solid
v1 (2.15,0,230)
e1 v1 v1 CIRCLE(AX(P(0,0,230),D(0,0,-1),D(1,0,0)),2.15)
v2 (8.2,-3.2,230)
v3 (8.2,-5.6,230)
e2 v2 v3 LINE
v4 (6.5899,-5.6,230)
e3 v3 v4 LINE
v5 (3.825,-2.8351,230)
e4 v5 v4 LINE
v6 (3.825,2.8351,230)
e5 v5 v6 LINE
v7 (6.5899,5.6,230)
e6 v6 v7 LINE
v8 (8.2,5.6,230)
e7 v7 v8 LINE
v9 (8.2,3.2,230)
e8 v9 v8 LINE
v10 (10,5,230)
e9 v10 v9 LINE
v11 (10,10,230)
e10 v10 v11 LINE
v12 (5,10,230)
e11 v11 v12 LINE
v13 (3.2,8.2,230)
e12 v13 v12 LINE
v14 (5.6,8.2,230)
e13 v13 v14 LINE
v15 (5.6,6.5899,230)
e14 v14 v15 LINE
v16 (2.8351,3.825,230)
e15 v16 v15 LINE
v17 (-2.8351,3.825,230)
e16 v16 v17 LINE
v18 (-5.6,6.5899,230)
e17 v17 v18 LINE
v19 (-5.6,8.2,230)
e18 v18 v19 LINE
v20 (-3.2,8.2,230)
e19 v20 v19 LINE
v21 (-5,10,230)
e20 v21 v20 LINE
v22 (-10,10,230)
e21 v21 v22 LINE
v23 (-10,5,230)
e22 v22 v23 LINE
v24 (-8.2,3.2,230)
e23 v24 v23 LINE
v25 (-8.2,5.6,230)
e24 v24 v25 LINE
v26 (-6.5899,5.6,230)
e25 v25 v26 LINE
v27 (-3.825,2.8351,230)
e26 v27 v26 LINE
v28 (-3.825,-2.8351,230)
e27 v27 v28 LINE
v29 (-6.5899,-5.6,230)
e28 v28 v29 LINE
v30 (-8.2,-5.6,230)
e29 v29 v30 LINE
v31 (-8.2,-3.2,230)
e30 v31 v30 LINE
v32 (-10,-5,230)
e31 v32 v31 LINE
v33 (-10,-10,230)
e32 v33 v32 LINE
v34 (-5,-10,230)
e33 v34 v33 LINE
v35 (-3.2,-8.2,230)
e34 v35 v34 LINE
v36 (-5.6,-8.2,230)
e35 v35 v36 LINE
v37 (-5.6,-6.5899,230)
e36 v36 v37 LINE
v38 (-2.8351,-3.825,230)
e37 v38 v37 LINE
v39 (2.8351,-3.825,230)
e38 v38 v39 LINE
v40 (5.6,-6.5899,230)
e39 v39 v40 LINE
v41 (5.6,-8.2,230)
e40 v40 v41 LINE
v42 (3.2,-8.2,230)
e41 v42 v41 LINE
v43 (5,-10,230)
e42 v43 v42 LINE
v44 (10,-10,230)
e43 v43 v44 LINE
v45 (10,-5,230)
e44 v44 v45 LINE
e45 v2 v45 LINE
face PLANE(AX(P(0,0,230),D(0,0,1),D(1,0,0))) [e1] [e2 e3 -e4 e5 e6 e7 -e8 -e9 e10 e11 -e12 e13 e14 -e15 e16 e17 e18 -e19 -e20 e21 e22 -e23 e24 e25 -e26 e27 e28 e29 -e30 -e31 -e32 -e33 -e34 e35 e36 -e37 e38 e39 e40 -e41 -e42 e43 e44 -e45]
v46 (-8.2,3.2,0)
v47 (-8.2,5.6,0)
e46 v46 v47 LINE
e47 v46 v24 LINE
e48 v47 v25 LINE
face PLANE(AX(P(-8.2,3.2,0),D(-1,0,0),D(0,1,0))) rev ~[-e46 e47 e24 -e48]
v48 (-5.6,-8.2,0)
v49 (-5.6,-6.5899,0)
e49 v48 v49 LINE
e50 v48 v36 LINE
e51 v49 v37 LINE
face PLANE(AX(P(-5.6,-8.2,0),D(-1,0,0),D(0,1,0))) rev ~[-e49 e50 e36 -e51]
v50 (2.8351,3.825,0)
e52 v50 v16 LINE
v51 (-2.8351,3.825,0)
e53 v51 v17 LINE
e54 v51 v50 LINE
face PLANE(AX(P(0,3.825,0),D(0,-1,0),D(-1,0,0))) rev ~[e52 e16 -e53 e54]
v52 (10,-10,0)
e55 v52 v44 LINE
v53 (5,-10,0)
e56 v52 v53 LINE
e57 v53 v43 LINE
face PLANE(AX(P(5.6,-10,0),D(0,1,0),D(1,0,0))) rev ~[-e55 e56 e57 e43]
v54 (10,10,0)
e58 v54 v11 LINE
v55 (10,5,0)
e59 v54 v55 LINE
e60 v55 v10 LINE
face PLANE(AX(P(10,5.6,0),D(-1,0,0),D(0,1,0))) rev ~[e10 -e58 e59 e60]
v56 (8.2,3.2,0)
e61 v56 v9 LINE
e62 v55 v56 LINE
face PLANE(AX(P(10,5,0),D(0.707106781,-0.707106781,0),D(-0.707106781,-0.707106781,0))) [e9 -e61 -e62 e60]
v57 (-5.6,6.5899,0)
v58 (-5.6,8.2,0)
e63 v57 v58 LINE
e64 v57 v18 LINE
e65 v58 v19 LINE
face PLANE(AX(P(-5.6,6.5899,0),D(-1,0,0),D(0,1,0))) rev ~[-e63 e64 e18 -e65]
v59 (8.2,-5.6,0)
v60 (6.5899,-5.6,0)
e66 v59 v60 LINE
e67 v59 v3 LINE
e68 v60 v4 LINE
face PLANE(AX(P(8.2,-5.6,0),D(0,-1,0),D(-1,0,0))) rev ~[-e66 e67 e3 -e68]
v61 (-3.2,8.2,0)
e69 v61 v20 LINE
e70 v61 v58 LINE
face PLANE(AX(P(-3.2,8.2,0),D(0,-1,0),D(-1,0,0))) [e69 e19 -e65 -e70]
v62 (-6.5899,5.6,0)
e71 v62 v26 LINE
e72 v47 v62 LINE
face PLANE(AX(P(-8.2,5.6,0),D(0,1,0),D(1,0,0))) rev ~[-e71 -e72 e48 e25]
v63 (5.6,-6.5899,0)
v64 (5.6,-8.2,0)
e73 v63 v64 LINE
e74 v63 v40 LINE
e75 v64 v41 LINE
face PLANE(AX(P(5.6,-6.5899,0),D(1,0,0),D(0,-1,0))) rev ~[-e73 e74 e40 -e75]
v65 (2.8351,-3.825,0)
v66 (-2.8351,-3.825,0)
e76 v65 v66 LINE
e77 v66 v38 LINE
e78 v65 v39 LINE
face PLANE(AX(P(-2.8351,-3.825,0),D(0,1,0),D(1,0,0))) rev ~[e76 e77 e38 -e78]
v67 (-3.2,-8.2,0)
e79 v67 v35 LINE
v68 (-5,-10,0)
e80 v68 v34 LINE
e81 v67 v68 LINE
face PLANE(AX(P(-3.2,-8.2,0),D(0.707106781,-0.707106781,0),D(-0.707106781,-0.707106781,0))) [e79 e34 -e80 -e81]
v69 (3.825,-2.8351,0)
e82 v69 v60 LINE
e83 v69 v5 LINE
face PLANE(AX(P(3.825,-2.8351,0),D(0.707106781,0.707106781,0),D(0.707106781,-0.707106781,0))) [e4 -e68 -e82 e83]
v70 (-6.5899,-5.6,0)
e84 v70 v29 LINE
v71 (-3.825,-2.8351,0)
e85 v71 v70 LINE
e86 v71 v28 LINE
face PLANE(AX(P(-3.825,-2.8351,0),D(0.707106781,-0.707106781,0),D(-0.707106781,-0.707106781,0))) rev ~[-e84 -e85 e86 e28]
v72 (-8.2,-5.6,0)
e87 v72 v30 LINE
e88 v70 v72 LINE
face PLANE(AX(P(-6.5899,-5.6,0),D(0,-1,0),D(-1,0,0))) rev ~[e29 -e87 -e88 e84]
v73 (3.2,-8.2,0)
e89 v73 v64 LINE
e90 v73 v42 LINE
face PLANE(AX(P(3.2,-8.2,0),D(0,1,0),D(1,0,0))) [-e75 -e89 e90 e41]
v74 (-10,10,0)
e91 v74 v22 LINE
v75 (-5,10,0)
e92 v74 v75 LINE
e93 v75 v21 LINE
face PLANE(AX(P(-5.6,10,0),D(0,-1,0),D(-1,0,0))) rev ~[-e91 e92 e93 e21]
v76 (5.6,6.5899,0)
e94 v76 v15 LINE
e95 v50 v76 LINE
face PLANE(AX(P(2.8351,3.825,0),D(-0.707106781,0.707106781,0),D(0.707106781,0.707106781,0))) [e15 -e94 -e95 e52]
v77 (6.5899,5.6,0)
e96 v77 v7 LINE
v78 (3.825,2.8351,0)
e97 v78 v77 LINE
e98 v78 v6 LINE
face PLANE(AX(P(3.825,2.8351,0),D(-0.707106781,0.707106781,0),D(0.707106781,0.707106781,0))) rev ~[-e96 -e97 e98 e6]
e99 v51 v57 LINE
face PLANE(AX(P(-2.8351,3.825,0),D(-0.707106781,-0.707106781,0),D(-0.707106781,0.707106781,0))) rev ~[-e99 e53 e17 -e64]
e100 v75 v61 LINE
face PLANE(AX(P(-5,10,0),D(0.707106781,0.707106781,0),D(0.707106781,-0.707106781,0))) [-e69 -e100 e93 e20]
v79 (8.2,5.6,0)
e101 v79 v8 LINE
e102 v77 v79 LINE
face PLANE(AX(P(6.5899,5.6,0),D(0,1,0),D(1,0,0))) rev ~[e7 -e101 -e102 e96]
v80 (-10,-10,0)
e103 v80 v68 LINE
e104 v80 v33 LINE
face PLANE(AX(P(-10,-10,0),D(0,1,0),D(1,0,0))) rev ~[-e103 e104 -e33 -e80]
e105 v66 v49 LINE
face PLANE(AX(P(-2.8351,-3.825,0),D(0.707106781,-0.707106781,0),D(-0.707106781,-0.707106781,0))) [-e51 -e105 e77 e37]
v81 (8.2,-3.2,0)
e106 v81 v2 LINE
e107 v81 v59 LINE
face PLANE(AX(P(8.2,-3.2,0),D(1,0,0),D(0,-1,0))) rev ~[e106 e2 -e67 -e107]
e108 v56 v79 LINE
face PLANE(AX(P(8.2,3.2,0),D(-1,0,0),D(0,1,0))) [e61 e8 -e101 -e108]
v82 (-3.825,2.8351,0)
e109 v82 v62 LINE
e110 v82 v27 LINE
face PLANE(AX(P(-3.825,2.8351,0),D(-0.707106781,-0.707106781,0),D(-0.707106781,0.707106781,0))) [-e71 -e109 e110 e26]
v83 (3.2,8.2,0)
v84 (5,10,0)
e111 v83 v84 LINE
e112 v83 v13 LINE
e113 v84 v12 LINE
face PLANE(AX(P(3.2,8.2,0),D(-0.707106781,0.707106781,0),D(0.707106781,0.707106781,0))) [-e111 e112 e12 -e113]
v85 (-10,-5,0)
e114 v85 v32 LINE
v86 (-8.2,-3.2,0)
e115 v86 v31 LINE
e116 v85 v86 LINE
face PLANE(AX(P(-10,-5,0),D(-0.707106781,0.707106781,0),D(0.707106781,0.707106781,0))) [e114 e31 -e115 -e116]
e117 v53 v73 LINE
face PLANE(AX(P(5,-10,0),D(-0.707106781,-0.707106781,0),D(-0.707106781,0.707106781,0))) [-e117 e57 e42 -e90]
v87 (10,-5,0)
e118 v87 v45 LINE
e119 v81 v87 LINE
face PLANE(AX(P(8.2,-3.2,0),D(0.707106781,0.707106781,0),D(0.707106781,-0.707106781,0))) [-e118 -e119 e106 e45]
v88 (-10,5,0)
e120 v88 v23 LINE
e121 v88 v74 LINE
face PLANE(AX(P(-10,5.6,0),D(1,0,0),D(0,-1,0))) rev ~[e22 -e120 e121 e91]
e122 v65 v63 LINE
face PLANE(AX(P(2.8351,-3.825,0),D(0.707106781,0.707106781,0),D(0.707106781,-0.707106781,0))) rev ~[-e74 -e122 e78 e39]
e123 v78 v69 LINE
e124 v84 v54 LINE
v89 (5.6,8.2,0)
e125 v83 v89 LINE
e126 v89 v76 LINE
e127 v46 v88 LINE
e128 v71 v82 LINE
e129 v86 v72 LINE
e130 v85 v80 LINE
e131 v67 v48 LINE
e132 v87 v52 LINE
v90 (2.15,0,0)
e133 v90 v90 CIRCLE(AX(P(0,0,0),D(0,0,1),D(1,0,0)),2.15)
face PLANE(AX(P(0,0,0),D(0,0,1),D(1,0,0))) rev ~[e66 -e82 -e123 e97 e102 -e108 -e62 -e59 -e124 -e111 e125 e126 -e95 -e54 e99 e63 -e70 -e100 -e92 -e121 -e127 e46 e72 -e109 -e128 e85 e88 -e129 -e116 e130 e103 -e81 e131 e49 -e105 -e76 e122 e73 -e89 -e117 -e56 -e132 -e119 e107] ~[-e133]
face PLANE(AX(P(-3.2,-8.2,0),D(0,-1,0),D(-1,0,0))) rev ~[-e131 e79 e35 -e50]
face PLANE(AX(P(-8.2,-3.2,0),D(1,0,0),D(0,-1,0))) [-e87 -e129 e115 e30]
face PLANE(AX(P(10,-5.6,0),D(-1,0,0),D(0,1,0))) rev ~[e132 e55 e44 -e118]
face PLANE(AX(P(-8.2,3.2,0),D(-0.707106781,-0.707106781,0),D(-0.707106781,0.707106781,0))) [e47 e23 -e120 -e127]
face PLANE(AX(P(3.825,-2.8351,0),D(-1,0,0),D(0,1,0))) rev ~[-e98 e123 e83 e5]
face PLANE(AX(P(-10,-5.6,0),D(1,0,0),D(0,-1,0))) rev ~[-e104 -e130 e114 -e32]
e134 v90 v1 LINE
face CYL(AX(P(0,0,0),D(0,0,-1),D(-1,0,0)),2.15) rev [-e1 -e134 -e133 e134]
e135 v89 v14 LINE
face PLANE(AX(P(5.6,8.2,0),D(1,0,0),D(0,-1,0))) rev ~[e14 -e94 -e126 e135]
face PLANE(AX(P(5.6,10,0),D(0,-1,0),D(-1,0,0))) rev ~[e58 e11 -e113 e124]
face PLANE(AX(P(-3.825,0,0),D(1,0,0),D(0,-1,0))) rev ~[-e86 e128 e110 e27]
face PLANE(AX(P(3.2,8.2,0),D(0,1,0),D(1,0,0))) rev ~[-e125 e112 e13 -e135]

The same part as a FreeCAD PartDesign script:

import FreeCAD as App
import Part
import Sketcher
from FreeCAD import Vector
Q = App.Units.Quantity


def add_polygon(sketch, points):
    """Adds a closed chain of lines whose ends are joined by coincident constraints."""
    first, n = sketch.GeometryCount, len(points)
    for a, b in zip(points, points[1:] + points[:1]):
        sketch.addGeometry(Part.LineSegment(App.Vector(*a, 0), App.Vector(*b, 0)), False)
    for i in range(n):
        sketch.addConstraint(Sketcher.Constraint("Coincident", first + i, 2, first + (i + 1) % n, 1))

doc = App.newDocument("Part")
body = doc.addObject("PartDesign::Body", "Body")

# Sketch on XY plane
sketch1 = body.newObject("Sketcher::SketchObject", "Sketch")
sketch1.AttachmentSupport = (doc.getObject("XY_Plane"), [""])
sketch1.MapMode = "FlatFace"
add_polygon(sketch1, [(-10, -10), (-5, -10), (-3.2, -8.2), (-5.6, -8.2), (-5.6, -6.6), (-2.8, -3.8), (2.8, -3.8), (5.6, -6.6), (5.6, -8.2), (3.2, -8.2), (5, -10), (10, -10), (10, -5), (8.2, -3.2), (8.2, -5.6), (6.6, -5.6), (3.8, -2.8), (3.8, 2.8), (6.6, 5.6), (8.2, 5.6), (8.2, 3.2), (10, 5), (10, 10), (5, 10), (3.2, 8.2), (5.6, 8.2), (5.6, 6.6), (2.8, 3.8), (-2.8, 3.8), (-5.6, 6.6), (-5.6, 8.2), (-3.2, 8.2), (-5, 10), (-10, 10), (-10, 5), (-8.2, 3.2), (-8.2, 5.6), (-6.6, 5.6), (-3.8, 2.8), (-3.8, -2.8), (-6.6, -5.6), (-8.2, -5.6), (-8.2, -3.2), (-10, -5)])  # lines 0-43
sketch1.addGeometry(Part.Circle(Vector(0, 0, 0), Vector(0, 0, 1), 2.1), False)  # 44
sketch1.addConstraint([
    Sketcher.Constraint("Horizontal", 0),
    Sketcher.Constraint("Horizontal", 2),
    Sketcher.Constraint("Vertical", 3),
    Sketcher.Constraint("Horizontal", 5),
    Sketcher.Constraint("Vertical", 7),
    Sketcher.Constraint("Horizontal", 8),
    Sketcher.Constraint("Horizontal", 10),
    Sketcher.Constraint("Vertical", 11),
    Sketcher.Constraint("Vertical", 13),
    Sketcher.Constraint("Horizontal", 14),
    Sketcher.Constraint("Vertical", 16),
    Sketcher.Constraint("Horizontal", 18),
    Sketcher.Constraint("Vertical", 19),
    Sketcher.Constraint("Vertical", 21),
    Sketcher.Constraint("Horizontal", 22),
    Sketcher.Constraint("Horizontal", 24),
    Sketcher.Constraint("Vertical", 25),
    Sketcher.Constraint("Horizontal", 27),
    Sketcher.Constraint("Vertical", 29),
    Sketcher.Constraint("Horizontal", 30),
    Sketcher.Constraint("Horizontal", 32),
    Sketcher.Constraint("Vertical", 33),
    Sketcher.Constraint("Vertical", 35),
    Sketcher.Constraint("Horizontal", 36),
    Sketcher.Constraint("Vertical", 38),
    Sketcher.Constraint("Horizontal", 40),
    Sketcher.Constraint("Vertical", 41),
    Sketcher.Constraint("Vertical", 43),
    Sketcher.Constraint("Coincident", 44, 3, -1, 1),
    Sketcher.Constraint("Symmetric", 0, 2, 22, 2, -1, 1),
    Sketcher.Constraint("Symmetric", 1, 2, 23, 2, -1, 1),
    Sketcher.Constraint("Symmetric", 3, 2, 25, 2, -1, 1),
    Sketcher.Constraint("Symmetric", 4, 2, 26, 2, -1, 1),
    Sketcher.Constraint("Symmetric", 6, 2, 28, 2, -1, 1),
    Sketcher.Constraint("Symmetric", 8, 2, 30, 2, -1, 1),
    Sketcher.Constraint("Symmetric", 9, 2, 31, 2, -1, 1),
    Sketcher.Constraint("Symmetric", 11, 2, 33, 2, -1, 1),
    Sketcher.Constraint("Symmetric", 12, 2, 34, 2, -1, 1),
    Sketcher.Constraint("Symmetric", 14, 2, 36, 2, -1, 1),
    Sketcher.Constraint("Symmetric", 15, 2, 37, 2, -1, 1),
    Sketcher.Constraint("Symmetric", 17, 2, 39, 2, -1, 1),
    Sketcher.Constraint("Symmetric", 19, 2, 41, 2, -1, 1),
    Sketcher.Constraint("Symmetric", 20, 2, 42, 2, -1, 1),
    Sketcher.Constraint("Symmetric", 3, 2, 6, 2, -2),
    Sketcher.Constraint("Symmetric", 1, 2, 8, 2, -2),
    Sketcher.Constraint("Symmetric", 0, 2, 9, 2, -2),
    Sketcher.Constraint("Symmetric", 20, 2, 33, 2, -2),
    Sketcher.Constraint("Symmetric", 19, 2, 34, 2, -2),
    Sketcher.Constraint("Symmetric", 17, 2, 36, 2, -2),
    Sketcher.Constraint("Parallel", 1, 4),
    Sketcher.Constraint("Perpendicular", 4, 6),
    Sketcher.Constraint("Parallel", 6, 9),
    Sketcher.Constraint("Parallel", 9, 12),
    Sketcher.Constraint("Parallel", 12, 15),
    Sketcher.Constraint("Perpendicular", 15, 17),
    Sketcher.Constraint("Perpendicular", 26, 28),
    Sketcher.Constraint("Perpendicular", 37, 39),
    Sketcher.Constraint("Equal", 40, 3),
    Sketcher.Constraint("Equal", 32, 11),
    Sketcher.Constraint("Equal", 30, 13),
    Sketcher.Constraint("Equal", 27, 16),
    Sketcher.Constraint("Equal", 9, 12),
    Sketcher.Constraint("Equal", 6, 15),
    Sketcher.Constraint("Diameter", 44, Q("4.3 mm")),
    Sketcher.Constraint("DistanceY", 0, 2, -1, 1, Q("10 mm")),
    Sketcher.Constraint("DistanceX", 1, 2, -1, 1, Q("3.2 mm")),
    Sketcher.Constraint("DistanceX", 0, 2, 1, 2, Q("1.8 mm")),
    Sketcher.Constraint("DistanceX", 7, 2, 10, 2, Q("4.4 mm")),
    Sketcher.Constraint("DistanceY", 4, 2, -1, 1, Q("3.825 mm")),
    Sketcher.Constraint("DistanceX", 14, 2, 14, 1, Q("1.61 mm")),
])
pad1 = body.newObject("PartDesign::Pad", "Pad")
pad1.Profile = sketch1
pad1.Length = 230

doc.recompute()
